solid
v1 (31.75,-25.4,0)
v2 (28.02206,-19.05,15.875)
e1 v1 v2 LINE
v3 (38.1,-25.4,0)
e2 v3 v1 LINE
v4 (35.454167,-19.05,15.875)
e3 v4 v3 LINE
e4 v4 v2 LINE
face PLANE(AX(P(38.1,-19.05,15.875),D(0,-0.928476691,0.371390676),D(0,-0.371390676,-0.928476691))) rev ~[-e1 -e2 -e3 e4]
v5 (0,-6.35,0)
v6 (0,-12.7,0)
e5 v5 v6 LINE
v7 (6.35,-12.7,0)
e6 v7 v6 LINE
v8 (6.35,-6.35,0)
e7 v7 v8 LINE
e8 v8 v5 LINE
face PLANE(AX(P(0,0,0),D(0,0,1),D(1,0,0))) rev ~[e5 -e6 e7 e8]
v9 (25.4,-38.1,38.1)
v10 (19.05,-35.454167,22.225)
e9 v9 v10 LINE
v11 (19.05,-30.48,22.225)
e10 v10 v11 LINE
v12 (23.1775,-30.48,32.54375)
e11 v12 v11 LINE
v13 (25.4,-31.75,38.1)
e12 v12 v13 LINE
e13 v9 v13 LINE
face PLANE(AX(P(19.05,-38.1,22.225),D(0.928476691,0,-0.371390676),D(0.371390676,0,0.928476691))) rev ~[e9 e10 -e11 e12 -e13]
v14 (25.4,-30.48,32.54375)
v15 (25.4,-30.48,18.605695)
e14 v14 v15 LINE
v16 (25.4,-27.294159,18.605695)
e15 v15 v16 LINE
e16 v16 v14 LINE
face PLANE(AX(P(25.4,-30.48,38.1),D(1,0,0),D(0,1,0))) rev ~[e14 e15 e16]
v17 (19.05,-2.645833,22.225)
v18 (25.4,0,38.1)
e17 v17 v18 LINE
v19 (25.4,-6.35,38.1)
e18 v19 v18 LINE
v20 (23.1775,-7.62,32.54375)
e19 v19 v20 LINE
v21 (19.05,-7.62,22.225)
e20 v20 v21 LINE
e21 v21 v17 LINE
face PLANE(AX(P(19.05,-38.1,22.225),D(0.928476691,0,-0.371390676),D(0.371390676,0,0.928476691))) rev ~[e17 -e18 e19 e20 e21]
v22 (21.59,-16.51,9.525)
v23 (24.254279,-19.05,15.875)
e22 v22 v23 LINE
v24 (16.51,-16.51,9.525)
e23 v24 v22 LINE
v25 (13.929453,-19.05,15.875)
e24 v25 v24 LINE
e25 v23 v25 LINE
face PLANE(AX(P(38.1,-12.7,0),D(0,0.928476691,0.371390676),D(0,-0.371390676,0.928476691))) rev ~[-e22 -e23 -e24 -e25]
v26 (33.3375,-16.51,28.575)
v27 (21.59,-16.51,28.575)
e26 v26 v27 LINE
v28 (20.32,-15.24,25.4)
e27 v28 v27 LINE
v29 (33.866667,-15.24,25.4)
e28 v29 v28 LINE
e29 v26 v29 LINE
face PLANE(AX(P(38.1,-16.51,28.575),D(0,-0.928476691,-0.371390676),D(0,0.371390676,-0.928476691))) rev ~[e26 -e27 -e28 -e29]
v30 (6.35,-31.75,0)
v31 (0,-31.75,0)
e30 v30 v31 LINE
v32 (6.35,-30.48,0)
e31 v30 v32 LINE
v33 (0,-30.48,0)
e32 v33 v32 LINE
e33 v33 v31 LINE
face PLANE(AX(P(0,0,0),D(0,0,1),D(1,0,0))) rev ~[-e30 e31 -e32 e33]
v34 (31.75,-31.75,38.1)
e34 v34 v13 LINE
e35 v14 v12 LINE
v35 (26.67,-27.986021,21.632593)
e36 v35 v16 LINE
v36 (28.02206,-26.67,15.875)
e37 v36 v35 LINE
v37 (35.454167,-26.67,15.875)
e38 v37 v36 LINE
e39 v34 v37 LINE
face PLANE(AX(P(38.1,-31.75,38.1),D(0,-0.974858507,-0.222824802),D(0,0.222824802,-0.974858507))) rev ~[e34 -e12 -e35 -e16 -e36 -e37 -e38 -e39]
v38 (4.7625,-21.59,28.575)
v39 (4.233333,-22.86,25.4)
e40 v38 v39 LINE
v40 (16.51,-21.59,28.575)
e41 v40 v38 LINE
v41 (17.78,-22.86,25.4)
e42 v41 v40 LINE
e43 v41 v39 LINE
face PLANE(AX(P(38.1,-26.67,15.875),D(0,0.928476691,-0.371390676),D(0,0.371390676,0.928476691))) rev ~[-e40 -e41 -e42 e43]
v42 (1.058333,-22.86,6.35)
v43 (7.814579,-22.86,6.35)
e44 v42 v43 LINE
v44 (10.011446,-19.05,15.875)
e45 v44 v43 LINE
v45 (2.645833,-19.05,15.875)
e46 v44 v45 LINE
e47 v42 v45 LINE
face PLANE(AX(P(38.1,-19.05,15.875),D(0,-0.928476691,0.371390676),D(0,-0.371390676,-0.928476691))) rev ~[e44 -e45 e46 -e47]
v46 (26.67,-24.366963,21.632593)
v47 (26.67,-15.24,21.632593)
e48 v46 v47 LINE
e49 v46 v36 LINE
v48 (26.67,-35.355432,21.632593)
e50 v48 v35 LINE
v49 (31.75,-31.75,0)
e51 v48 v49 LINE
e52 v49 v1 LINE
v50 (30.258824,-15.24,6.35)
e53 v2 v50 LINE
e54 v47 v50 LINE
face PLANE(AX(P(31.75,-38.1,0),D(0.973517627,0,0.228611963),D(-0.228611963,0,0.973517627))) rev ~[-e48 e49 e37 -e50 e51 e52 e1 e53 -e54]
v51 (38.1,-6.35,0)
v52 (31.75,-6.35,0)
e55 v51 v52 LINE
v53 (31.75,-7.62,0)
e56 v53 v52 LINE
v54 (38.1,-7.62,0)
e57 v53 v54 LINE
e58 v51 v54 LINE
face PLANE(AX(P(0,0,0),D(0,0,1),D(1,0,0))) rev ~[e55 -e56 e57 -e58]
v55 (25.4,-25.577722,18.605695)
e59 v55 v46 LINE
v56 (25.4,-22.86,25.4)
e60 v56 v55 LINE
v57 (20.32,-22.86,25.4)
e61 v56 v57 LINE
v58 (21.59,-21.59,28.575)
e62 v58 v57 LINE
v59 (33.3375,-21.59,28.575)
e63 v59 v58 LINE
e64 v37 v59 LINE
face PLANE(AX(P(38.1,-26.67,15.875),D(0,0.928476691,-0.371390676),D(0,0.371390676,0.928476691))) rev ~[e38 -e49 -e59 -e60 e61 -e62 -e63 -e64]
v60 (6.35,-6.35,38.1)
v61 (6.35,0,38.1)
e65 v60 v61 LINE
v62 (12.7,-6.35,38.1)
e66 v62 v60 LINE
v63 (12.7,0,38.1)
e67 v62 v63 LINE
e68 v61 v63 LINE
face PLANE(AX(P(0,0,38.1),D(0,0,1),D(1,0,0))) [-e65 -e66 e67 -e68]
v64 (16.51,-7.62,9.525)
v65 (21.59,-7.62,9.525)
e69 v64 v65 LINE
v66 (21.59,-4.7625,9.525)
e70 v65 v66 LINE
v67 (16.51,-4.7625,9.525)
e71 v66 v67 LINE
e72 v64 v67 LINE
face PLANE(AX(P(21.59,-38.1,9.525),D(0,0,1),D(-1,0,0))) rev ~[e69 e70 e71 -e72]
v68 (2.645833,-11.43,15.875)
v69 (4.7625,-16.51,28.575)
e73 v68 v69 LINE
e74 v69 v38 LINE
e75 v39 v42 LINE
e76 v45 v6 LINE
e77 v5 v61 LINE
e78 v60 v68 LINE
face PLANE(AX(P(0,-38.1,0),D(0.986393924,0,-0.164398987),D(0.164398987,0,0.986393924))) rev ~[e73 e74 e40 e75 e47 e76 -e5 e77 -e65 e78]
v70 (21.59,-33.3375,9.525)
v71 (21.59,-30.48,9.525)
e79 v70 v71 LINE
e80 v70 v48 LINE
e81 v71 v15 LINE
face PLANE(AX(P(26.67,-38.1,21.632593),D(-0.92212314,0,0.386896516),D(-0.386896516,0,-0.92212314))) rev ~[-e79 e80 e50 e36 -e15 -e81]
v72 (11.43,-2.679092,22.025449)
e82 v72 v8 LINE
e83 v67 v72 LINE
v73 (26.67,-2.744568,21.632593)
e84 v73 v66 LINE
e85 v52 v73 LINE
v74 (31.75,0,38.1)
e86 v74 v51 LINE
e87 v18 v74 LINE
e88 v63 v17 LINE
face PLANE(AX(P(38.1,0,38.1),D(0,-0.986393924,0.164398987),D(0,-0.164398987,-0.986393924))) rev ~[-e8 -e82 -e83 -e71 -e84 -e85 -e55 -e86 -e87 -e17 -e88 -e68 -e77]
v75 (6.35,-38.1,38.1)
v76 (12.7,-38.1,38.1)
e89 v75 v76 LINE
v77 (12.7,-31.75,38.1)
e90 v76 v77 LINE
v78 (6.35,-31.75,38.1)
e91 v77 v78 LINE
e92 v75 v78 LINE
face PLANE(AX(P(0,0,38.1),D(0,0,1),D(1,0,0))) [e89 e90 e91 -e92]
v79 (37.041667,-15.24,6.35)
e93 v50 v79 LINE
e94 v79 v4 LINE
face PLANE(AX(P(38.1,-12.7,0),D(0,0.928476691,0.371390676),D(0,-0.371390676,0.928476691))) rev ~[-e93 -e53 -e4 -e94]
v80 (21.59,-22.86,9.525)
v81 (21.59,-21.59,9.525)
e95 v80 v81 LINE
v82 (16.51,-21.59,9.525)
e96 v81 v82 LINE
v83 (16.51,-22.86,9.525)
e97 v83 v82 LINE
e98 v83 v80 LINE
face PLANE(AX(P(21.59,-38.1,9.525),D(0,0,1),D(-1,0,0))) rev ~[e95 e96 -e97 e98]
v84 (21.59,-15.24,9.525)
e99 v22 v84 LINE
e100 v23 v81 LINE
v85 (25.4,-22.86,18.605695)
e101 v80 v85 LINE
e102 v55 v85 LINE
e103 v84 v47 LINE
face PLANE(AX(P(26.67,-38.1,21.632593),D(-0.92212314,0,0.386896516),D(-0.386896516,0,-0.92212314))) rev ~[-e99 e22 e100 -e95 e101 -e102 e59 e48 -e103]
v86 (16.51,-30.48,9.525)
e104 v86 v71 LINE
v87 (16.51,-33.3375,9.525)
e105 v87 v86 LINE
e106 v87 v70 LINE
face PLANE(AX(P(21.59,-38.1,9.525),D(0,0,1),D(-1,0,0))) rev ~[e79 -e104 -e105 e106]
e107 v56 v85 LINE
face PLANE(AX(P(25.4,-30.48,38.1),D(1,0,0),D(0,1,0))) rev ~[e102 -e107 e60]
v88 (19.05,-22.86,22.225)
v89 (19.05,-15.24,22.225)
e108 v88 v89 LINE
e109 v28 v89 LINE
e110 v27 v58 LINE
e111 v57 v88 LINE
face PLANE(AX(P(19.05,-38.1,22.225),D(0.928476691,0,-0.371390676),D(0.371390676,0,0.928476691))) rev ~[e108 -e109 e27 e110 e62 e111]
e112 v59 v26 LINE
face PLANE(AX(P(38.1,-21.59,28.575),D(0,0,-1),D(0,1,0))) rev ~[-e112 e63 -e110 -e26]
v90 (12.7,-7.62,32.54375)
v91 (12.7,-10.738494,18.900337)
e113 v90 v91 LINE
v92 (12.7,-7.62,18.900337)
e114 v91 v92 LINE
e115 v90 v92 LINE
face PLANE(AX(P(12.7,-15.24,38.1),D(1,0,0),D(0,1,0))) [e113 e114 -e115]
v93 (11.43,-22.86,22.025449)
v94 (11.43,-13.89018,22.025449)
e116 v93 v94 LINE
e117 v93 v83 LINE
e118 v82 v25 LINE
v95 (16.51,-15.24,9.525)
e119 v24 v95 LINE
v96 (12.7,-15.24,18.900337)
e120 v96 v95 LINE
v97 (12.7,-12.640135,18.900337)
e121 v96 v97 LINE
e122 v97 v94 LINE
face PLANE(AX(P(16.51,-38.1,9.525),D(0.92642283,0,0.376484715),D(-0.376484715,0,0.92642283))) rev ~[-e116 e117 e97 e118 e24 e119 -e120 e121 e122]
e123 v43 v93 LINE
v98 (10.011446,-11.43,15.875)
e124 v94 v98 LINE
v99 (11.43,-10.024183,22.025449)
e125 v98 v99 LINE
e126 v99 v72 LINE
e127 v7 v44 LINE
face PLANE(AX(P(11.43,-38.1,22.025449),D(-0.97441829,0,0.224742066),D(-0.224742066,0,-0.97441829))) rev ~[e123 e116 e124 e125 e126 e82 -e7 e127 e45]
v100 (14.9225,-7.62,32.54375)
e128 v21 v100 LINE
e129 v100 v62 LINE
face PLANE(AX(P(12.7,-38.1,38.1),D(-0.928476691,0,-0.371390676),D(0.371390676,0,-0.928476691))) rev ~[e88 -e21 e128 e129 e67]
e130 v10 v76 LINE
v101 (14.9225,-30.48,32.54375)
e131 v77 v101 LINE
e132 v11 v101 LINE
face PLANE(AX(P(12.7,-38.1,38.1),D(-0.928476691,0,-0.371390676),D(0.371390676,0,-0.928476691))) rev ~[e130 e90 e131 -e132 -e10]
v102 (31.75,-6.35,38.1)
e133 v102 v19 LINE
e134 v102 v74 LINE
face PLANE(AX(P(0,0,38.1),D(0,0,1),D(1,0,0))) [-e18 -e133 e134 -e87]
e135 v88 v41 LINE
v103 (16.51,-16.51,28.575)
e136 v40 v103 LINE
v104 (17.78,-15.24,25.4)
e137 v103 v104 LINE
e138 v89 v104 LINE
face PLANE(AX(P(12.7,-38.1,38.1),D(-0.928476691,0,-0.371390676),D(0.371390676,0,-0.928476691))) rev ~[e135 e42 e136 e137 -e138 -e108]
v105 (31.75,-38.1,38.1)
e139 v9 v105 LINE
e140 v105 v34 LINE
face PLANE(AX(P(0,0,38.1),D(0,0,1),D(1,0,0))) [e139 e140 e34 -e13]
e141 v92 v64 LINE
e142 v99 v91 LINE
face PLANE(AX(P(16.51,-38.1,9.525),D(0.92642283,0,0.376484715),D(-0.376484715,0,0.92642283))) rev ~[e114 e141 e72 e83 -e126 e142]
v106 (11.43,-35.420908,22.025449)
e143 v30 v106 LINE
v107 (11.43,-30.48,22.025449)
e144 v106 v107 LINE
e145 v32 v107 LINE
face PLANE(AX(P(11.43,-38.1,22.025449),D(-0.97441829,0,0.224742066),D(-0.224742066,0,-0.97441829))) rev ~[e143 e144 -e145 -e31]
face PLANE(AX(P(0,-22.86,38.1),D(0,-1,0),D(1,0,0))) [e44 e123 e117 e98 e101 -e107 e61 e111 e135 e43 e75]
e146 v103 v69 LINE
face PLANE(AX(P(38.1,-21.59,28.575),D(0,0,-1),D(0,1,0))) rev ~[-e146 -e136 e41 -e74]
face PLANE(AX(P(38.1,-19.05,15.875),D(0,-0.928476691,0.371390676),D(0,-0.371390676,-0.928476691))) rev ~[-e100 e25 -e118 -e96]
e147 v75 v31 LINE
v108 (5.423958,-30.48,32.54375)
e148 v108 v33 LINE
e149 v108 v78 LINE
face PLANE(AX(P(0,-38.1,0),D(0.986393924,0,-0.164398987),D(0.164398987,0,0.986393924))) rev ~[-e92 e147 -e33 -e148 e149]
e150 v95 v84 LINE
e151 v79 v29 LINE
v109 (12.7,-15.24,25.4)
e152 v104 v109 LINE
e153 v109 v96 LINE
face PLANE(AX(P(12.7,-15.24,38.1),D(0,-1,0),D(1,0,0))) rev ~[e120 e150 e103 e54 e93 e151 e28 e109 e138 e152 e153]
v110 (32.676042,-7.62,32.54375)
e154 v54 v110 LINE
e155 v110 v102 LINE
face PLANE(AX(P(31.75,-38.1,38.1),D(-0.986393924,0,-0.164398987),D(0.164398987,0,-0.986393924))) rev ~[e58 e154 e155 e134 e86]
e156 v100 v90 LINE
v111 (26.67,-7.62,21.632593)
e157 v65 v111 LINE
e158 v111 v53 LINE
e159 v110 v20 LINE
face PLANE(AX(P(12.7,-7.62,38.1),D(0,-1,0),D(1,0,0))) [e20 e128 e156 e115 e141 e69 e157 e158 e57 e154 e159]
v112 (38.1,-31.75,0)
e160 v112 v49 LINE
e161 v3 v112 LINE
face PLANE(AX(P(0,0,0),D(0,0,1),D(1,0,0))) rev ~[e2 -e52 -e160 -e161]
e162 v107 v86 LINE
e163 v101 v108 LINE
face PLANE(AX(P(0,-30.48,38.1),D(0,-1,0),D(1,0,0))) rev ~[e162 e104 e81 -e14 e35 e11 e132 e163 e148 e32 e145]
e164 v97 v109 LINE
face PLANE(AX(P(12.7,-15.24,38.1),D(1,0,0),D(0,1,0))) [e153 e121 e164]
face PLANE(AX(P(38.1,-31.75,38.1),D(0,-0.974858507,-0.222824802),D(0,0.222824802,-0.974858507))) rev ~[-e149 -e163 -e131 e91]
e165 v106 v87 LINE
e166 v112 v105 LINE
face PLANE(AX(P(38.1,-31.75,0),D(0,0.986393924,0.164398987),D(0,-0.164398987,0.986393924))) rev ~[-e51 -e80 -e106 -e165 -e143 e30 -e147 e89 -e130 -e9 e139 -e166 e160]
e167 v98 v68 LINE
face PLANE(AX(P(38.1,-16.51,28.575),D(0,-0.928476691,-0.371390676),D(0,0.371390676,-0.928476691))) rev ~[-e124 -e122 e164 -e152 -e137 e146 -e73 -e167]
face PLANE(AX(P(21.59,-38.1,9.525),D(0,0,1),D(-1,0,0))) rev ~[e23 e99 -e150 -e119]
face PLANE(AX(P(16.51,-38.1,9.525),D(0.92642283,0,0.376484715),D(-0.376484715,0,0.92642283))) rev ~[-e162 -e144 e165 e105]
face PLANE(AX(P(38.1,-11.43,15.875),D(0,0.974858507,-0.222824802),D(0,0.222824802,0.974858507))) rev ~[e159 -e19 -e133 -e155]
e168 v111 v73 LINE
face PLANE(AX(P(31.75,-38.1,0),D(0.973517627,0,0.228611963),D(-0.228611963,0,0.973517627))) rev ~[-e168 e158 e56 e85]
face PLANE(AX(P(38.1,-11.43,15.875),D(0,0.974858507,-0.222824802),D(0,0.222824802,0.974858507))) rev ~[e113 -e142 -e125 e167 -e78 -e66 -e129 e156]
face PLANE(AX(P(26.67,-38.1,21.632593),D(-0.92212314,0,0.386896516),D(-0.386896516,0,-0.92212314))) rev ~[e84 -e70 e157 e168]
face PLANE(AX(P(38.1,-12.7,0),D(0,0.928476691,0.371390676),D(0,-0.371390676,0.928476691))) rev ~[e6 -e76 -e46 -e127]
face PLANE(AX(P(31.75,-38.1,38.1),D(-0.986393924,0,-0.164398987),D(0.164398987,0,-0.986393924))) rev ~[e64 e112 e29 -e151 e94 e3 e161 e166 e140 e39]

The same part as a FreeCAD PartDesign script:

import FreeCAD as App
import Part
import Sketcher
from FreeCAD import Vector
Q = App.Units.Quantity


def add_polygon(sketch, points):
    """Adds a closed chain of lines whose ends are joined by coincident constraints."""
    first, n = sketch.GeometryCount, len(points)
    for a, b in zip(points, points[1:] + points[:1]):
        sketch.addGeometry(Part.LineSegment(App.Vector(*a, 0), App.Vector(*b, 0)), False)
    for i in range(n):
        sketch.addConstraint(Sketcher.Constraint("Coincident", first + i, 2, first + (i + 1) % n, 1))

doc = App.newDocument("Part")
body = doc.addObject("PartDesign::Body", "Body")

# Sketch on XZ plane
sketch1 = body.newObject("Sketcher::SketchObject", "Sketch")
sketch1.AttachmentSupport = (doc.getObject("XZ_Plane"), [""])
sketch1.MapMode = "FlatFace"
add_polygon(sketch1, [(0, 38), (0, 0), (38, 0), (38, 38)])  # lines 0-3
sketch1.addConstraint([
    Sketcher.Constraint("Vertical", 0),
    Sketcher.Constraint("Horizontal", 1),
    Sketcher.Constraint("Vertical", 2),
    Sketcher.Constraint("Horizontal", 3),
    Sketcher.Constraint("Coincident", 0, 2, -1, 1),
    Sketcher.Constraint("Equal", 3, 0),
    Sketcher.Constraint("DistanceX", 1, 1, 1, 2, Q("1.5 in")),
])
pad1 = body.newObject("PartDesign::Pad", "Pad")
pad1.Profile = sketch1
pad1.Length = Q("1.5 in")

# Sketch on YZ plane
sketch2 = body.newObject("Sketcher::SketchObject", "Sketch001")
sketch2.AttachmentSupport = (doc.getObject("YZ_Plane"), [""])
sketch2.MapMode = "FlatFace"
sketch2.AttachmentOffset = App.Placement(Vector(0, 0, 1.5 * 25.4), App.Rotation())
add_polygon(sketch2, [(-11, 16), (-6, 38), (-32, 38), (-27, 16), (-22, 29), (-17, 29)])  # lines 0-5
add_polygon(sketch2, [(-38, 0), (-32, 0), (-38, 38)])  # lines 6-8
add_polygon(sketch2, [(-25, 0), (-13, 0), (-19, 16)])  # lines 9-11
add_polygon(sketch2, [(-6, 0), (0, 0), (0, 38)])  # lines 12-14
sketch2.addConstraint([
    Sketcher.Constraint("Horizontal", 1),
    Sketcher.Constraint("Horizontal", 4),
    Sketcher.Constraint("Horizontal", 6),
    Sketcher.Constraint("Vertical", 8),
    Sketcher.Constraint("Horizontal", 9),
    Sketcher.Constraint("Horizontal", 12),
    Sketcher.Constraint("Vertical", 13),
    Sketcher.Constraint("Coincident", 12, 2, -1, 1),
    Sketcher.Constraint("PointOnObject", 6, 2, -1),
    Sketcher.Constraint("PointOnObject", 9, 2, -1),
    Sketcher.Constraint("Parallel", 5, 10),
    Sketcher.Constraint("Parallel", 3, 11),
    Sketcher.Constraint("Horizontal", 2, 2, 5, 2),
    Sketcher.Constraint("Horizontal", 1, 2, 7, 2),
    Sketcher.Constraint("Horizontal", 5, 2, 10, 2),
    Sketcher.Constraint("Horizontal", 7, 2, 13, 2),
    Sketcher.Constraint("Vertical", 1, 2, 6, 2),
    Sketcher.Constraint("Vertical", 0, 2, 14, 2),
    Sketcher.Constraint("Equal", 6, 12),
    Sketcher.Constraint("Equal", 0, 2),
    Sketcher.Constraint("Equal", 3, 5),
    Sketcher.Constraint("DistanceX", 1, 2, 1, 1, Q("1 in")),
    Sketcher.Constraint("DistanceX", 4, 1, 4, 2, Q("0.2 in")),
    Sketcher.Constraint("DistanceX", 9, 1, 9, 2, Q("0.5 in")),
    Sketcher.Constraint("DistanceY", 8, 2, 8, 1, Q("1.5 in")),
    Sketcher.Constraint("DistanceX", 11, 2, -1, 1, Q("1 in")),
    Sketcher.Constraint("DistanceX", 8, 2, 9, 2, Q("1 in")),
    Sketcher.Constraint("DistanceX", 1, 2, 2, 2, Q("0.2 in")),
    Sketcher.Constraint("DistanceY", 2, 2, 3, 2, Q("0.5 in")),
])
pocket1 = body.newObject("PartDesign::Pocket", "Pocket")
pocket1.Profile = sketch2
pocket1.Length = Q("1.5 in")

# Sketch on XZ plane
sketch3 = body.newObject("Sketcher::SketchObject", "Sketch002")
sketch3.AttachmentSupport = (doc.getObject("XZ_Plane"), [""])
sketch3.MapMode = "FlatFace"
sketch3.AttachmentOffset = App.Placement(Vector(0, 0, 1.5 * 25.4), App.Rotation())
add_polygon(sketch3, [(0, 38), (0, 0), (6, 38)])  # lines 0-2
add_polygon(sketch3, [(25, 38), (13, 38), (19, 22)])  # lines 3-5
add_polygon(sketch3, [(32, 38), (38, 0), (38, 38)])  # lines 6-8
add_polygon(sketch3, [(11, 22), (6, 0), (32, 0), (27, 22), (22, 10), (17, 10)])  # lines 9-14
sketch3.addConstraint([
    Sketcher.Constraint("Vertical", 0),
    Sketcher.Constraint("Horizontal", 2),
    Sketcher.Constraint("Horizontal", 3),
    Sketcher.Constraint("Vertical", 7),
    Sketcher.Constraint("Horizontal", 8),
    Sketcher.Constraint("Horizontal", 10),
    Sketcher.Constraint("Horizontal", 13),
    Sketcher.Constraint("Coincident", 0, 2, -1, 1),
    Sketcher.Constraint("PointOnObject", 6, 2, -1),
    Sketcher.Constraint("PointOnObject", 9, 2, -1),
    Sketcher.Constraint("Horizontal", 2, 2, 3, 2),
    Sketcher.Constraint("Horizontal", 5, 2, 7, 2),
    Sketcher.Constraint("Vertical", 1, 2, 9, 2),
    Sketcher.Constraint("Vertical", 8, 2, 10, 2),
    Sketcher.Constraint("Equal", 2, 8),
    Sketcher.Constraint("Equal", 4, 5),
    Sketcher.Constraint("DistanceX", 10, 1, 10, 2, Q("1 in")),
    Sketcher.Constraint("DistanceX", 3, 2, 3, 1, Q("0.5 in")),
    Sketcher.Constraint("DistanceX", 13, 2, 13, 1, Q("0.2 in")),
    Sketcher.Constraint("DistanceY", 0, 2, 0, 1, Q("1.5 in")),
    Sketcher.Constraint("DistanceX", -1, 1, 5, 2, Q("1 in")),
    Sketcher.Constraint("DistanceX", 3, 2, 6, 2, Q("1 in")),
    Sketcher.Constraint("DistanceX", 4, 2, 11, 2, Q("0.3 in")),
    Sketcher.Constraint("DistanceX", 4, 2, 12, 2, Q("0.1 in")),
    Sketcher.Constraint("DistanceY", 12, 2, 4, 2, Q("0.5 in")),
    Sketcher.Constraint("DistanceX", 14, 2, 4, 2, Q("0.3 in")),
    Sketcher.Constraint("DistanceY", -1, 1, 4, 2, Q("0.875 in")),
    Sketcher.Constraint("Distance", 9, 22.60369),
    Sketcher.Constraint("Distance", 11, 22.221059),
])
pocket2 = body.newObject("PartDesign::Pocket", "Pocket001")
pocket2.Profile = sketch3
pocket2.Length = Q("1.5 in")

# Sketch on XY plane
sketch4 = body.newObject("Sketcher::SketchObject", "Sketch003")
sketch4.AttachmentSupport = (doc.getObject("XY_Plane"), [""])
sketch4.MapMode = "FlatFace"
sketch4.AttachmentOffset = App.Placement(Vector(0, 0, 1.5 * 25.4), App.Rotation())
add_polygon(sketch4, [(13, -8), (13, -15), (38, -15), (38, -8)])  # lines 0-3
add_polygon(sketch4, [(0, -23), (0, -30), (25, -30), (25, -23)])  # lines 4-7
sketch4.addConstraint([
    Sketcher.Constraint("Vertical", 0),
    Sketcher.Constraint("Horizontal", 1),
    Sketcher.Constraint("Vertical", 2),
    Sketcher.Constraint("Horizontal", 3),
    Sketcher.Constraint("Vertical", 4),
    Sketcher.Constraint("Horizontal", 5),
    Sketcher.Constraint("Vertical", 6),
    Sketcher.Constraint("Horizontal", 7),
    Sketcher.Constraint("PointOnObject", 4, 2, -2),
    Sketcher.Constraint("Equal", 3, 5),
    Sketcher.Constraint("Equal", 2, 4),
    Sketcher.Constraint("DistanceX", 1, 1, 1, 2, Q("1 in")),
    Sketcher.Constraint("DistanceY", 0, 2, 0, 1, Q("0.3 in")),
    Sketcher.Constraint("DistanceX", -1, 1, 0, 2, Q("0.5 in")),
    Sketcher.Constraint("DistanceY", 0, 2, -1, 1, Q("0.6 in")),
    Sketcher.Constraint("DistanceY", 4, 2, -1, 1, Q("1.2 in")),
])
pocket3 = body.newObject("PartDesign::Pocket", "Pocket002")
pocket3.Profile = sketch4
pocket3.Length = Q("1.5 in")

doc.recompute()
